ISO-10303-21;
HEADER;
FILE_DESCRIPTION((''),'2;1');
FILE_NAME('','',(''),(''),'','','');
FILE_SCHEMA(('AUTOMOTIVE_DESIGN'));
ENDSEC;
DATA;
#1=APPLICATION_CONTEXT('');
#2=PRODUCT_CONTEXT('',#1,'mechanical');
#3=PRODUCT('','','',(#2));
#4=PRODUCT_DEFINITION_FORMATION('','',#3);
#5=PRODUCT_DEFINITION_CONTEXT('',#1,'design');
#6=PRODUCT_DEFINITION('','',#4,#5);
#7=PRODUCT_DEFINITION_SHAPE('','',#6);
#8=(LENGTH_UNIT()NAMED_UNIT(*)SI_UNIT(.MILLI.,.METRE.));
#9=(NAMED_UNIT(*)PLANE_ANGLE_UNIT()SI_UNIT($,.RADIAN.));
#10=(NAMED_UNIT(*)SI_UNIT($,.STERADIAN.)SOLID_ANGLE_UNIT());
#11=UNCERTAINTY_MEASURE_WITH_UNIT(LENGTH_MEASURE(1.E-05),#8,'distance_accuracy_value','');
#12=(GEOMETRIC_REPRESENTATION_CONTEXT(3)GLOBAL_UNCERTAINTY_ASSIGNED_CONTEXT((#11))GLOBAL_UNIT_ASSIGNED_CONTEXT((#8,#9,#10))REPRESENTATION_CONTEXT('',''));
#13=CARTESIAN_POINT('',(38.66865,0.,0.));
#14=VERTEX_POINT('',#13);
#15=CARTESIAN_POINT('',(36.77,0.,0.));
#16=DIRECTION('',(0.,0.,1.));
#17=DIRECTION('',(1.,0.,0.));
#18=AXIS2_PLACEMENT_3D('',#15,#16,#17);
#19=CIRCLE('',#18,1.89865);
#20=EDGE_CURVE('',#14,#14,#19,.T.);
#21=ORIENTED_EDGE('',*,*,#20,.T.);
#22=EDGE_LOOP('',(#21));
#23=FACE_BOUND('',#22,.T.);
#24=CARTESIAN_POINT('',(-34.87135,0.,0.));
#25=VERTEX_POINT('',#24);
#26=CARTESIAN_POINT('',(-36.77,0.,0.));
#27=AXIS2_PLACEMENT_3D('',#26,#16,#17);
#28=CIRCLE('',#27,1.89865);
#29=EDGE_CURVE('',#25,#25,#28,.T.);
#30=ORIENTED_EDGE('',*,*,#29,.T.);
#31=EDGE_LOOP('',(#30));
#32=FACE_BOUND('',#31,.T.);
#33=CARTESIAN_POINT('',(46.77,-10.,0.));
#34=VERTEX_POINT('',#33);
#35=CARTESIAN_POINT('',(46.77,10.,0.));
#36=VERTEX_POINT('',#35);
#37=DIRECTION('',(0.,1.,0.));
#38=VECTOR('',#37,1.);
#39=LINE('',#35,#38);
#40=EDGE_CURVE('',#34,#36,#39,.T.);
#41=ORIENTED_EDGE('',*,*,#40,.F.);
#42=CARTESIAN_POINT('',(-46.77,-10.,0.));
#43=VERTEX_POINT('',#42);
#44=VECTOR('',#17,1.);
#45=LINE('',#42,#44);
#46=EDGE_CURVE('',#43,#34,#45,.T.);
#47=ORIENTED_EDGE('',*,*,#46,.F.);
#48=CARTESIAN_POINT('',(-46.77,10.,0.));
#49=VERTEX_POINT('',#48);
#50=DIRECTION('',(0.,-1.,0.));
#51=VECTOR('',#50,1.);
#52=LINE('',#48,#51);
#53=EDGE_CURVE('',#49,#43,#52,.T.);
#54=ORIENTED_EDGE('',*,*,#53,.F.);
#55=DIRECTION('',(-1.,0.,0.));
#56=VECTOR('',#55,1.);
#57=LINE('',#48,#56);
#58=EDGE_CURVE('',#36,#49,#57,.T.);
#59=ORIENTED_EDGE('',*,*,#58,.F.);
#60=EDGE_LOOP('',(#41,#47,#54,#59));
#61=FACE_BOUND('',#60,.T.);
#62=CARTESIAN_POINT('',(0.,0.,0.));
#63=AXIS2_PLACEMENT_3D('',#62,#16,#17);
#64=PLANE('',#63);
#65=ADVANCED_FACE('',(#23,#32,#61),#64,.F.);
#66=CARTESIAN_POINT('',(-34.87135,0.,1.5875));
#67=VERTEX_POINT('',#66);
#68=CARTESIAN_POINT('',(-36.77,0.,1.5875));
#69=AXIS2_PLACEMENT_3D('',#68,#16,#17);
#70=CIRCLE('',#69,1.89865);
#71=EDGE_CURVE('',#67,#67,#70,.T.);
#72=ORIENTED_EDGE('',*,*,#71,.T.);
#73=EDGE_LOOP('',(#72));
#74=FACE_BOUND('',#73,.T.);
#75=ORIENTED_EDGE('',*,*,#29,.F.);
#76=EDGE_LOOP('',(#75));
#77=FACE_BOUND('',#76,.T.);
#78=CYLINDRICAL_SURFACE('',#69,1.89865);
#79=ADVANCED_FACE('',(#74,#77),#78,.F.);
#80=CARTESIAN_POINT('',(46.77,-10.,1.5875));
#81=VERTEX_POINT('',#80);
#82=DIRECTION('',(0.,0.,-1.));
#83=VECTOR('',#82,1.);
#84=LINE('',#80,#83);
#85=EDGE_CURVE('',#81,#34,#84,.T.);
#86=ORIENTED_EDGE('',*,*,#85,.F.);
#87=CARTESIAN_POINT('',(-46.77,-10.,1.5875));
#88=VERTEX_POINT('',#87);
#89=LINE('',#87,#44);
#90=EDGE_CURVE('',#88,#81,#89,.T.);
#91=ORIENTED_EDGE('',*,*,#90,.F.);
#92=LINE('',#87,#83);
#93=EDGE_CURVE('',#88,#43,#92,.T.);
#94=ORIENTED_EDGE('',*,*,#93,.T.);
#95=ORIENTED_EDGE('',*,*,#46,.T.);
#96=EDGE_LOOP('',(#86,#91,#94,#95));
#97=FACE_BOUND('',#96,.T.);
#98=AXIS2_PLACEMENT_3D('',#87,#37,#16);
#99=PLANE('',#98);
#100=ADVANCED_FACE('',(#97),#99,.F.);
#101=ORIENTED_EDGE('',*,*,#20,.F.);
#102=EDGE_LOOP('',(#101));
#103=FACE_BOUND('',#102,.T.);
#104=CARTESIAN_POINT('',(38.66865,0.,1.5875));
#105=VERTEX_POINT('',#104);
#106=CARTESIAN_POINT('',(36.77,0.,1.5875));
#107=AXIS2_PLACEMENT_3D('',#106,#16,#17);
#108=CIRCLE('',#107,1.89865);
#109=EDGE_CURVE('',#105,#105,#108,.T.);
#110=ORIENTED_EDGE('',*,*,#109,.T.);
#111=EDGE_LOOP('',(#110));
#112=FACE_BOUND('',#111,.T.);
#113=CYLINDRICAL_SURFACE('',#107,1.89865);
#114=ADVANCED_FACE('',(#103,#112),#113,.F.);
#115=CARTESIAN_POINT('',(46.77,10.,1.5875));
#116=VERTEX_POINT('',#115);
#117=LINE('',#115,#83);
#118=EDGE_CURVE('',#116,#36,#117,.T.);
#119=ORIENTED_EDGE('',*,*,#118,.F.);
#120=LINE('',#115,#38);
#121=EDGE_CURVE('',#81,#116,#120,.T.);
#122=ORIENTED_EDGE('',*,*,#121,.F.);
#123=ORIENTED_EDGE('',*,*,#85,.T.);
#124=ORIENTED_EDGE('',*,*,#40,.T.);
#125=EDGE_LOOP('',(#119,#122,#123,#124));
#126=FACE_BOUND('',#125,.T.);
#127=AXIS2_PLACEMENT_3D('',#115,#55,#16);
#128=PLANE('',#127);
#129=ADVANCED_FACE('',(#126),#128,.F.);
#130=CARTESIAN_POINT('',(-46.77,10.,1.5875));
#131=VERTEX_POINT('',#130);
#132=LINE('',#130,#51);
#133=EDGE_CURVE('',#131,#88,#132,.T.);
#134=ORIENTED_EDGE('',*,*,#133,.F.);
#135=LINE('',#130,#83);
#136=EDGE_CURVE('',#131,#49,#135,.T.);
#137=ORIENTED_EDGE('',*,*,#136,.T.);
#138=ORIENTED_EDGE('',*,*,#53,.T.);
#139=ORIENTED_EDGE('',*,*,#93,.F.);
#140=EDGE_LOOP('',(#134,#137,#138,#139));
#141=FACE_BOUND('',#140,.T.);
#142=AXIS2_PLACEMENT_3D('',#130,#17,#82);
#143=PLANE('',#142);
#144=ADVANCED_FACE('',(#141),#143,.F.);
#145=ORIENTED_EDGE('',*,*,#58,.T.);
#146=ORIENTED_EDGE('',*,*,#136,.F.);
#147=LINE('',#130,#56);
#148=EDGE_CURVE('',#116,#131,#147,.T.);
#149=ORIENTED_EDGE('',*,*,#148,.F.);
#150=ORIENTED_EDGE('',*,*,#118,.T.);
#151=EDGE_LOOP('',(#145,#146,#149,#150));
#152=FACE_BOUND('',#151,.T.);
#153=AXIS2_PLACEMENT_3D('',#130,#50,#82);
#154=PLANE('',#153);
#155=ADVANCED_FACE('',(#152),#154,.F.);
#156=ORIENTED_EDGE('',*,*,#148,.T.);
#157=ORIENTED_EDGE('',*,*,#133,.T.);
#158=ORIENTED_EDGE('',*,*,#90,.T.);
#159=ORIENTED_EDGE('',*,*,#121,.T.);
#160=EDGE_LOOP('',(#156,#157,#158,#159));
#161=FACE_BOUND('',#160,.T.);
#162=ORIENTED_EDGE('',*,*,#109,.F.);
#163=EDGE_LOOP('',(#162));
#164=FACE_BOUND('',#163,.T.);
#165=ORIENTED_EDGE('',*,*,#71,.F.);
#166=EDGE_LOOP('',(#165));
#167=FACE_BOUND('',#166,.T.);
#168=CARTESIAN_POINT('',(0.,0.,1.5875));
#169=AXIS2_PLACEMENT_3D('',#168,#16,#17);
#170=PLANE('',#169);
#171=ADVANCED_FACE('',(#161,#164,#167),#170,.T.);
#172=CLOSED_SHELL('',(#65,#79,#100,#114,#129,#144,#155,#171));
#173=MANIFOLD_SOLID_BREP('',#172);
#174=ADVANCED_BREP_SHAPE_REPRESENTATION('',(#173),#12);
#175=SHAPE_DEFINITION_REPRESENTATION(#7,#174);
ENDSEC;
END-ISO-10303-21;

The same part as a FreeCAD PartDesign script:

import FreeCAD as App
import Part
import Sketcher

V = App.Vector

doc = App.newDocument("Part")
body = doc.addObject("PartDesign::Body", "Body")

# Sketch on XY plane
sketch1 = body.newObject("Sketcher::SketchObject", "Sketch")
sketch1.AttachmentSupport = (doc.getObject("XY_Plane"), [""])
sketch1.MapMode = "FlatFace"
sketch1.addGeometry([
    Part.LineSegment(V(-47, 10, 0), V(-47, -10, 0)),
    Part.LineSegment(V(-47, -10, 0), V(47, -10, 0)),
    Part.LineSegment(V(47, -10, 0), V(47, 10, 0)),
    Part.LineSegment(V(47, 10, 0), V(-47, 10, 0)),
], False)
sketch1.addConstraint([
    Sketcher.Constraint("Coincident", 0, 2, 1, 1),
    Sketcher.Constraint("Coincident", 1, 2, 2, 1),
    Sketcher.Constraint("Coincident", 2, 2, 3, 1),
    Sketcher.Constraint("Coincident", 3, 2, 0, 1),
    Sketcher.Constraint("Vertical", 0),
    Sketcher.Constraint("Horizontal", 1),
    Sketcher.Constraint("Vertical", 2),
    Sketcher.Constraint("Horizontal", 3),
    Sketcher.Constraint("Symmetric", 0, 2, 2, 2, -1, 1),
    Sketcher.Constraint("DistanceY", 0, 2, 0, 1, 20.0),
    Sketcher.Constraint("DistanceX", 1, 1, 1, 2, 93.54),
])
pad1 = body.newObject("PartDesign::Pad", "Pad")
pad1.Profile = sketch1
pad1.Length = 1.5875

# Sketch on XY plane
sketch2 = body.newObject("Sketcher::SketchObject", "Sketch001")
sketch2.AttachmentSupport = (doc.getObject("XY_Plane"), [""])
sketch2.MapMode = "FlatFace"
sketch2.AttachmentOffset = App.Placement(V(0, 0, 1.5875), App.Rotation())
sketch2.addGeometry([
    Part.Circle(V(-36.8, 0, 0), V(0, 0, 1), 1.9),
    Part.Circle(V(36.8, 0, 0), V(0, 0, 1), 1.9),
], False)
sketch2.addConstraint([
    Sketcher.Constraint("Equal", 0, 1),
    Sketcher.Constraint("Symmetric", 0, 3, 1, 3, -1, 1),
    Sketcher.Constraint("PointOnObject", 0, 3, -1),
    Sketcher.Constraint("Diameter", 0, 3.7973),
    Sketcher.Constraint("DistanceX", 0, 3, -1, 1, 36.77),
])
doc.recompute()
hole = body.newObject("PartDesign::Hole", "Hole")
hole.Profile = sketch2
hole.ThreadType = "None"
hole.Diameter = 3.7973
hole.DepthType = "ThroughAll"

doc.recompute()
